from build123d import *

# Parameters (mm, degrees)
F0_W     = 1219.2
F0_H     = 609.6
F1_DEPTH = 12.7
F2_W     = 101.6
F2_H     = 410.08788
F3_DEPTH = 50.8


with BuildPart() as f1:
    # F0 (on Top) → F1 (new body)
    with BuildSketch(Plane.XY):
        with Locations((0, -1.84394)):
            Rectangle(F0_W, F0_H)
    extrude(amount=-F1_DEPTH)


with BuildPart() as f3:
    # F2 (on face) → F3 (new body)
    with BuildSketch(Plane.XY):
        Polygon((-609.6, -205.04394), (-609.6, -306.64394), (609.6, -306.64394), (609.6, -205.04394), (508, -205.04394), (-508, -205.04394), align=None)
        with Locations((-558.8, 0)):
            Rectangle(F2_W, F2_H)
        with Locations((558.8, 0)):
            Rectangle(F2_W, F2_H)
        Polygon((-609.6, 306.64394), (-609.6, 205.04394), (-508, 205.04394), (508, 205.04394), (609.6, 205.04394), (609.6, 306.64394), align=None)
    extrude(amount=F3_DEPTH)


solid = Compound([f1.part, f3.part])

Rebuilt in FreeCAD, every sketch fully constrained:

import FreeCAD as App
import Part
import Sketcher
Q = App.Units.Quantity

doc = App.newDocument("Part")
params = doc.addObject("Spreadsheet::Sheet", "Params")
for row, (alias, value) in enumerate([
    ("sketch1_width", "48 in"),
    ("sketch1_height", "24 in"),
    ("pad1_length", "0.5 in"),
    ("sketch2_width", "48 in"),
    ("sketch2_width2", "40 in"),
    ("pad2_length", "2 in"),
], start=1):
    params.set(f"A{row}", alias)
    params.set(f"B{row}", "=" + value)
    params.setAlias(f"B{row}", alias)

body = doc.addObject("PartDesign::Body", "Body")

# Sketch on XY plane
sketch1 = body.newObject("Sketcher::SketchObject", "Sketch")
sketch1.AttachmentSupport = (doc.getObject("XY_Plane"), [""])
sketch1.MapMode = "FlatFace"
sketch1.addGeometry([
    Part.LineSegment(App.Vector(-610, 303, 0), App.Vector(-610, -307, 0)),
    Part.LineSegment(App.Vector(-610, -307, 0), App.Vector(610, -307, 0)),
    Part.LineSegment(App.Vector(610, -307, 0), App.Vector(610, 303, 0)),
    Part.LineSegment(App.Vector(610, 303, 0), App.Vector(-610, 303, 0)),
], False)
sketch1.addConstraint([
    Sketcher.Constraint("Coincident", 0, 2, 1, 1),
    Sketcher.Constraint("Coincident", 1, 2, 2, 1),
    Sketcher.Constraint("Coincident", 2, 2, 3, 1),
    Sketcher.Constraint("Coincident", 3, 2, 0, 1),
    Sketcher.Constraint("Vertical", 0),
    Sketcher.Constraint("Horizontal", 1),
    Sketcher.Constraint("Vertical", 2),
    Sketcher.Constraint("Horizontal", 3),
    Sketcher.Constraint("DistanceX", 1, 1, 1, 2, Q("48 in")),
    Sketcher.Constraint("DistanceY", 0, 2, 0, 1, Q("24 in")),
    Sketcher.Constraint("DistanceX", 0, 2, -1, 1, Q("24 in")),
    Sketcher.Constraint("DistanceY", 0, 2, -1, 1, Q("306.64394 mm")),
])
sketch1.setExpression("Constraints[8]", "Params.sketch1_width")
sketch1.setExpression("Constraints[9]", "Params.sketch1_height")
pad1 = body.newObject("PartDesign::Pad", "Pad")
pad1.Profile = sketch1
pad1.setExpression("Length", "Params.pad1_length")
pad1.Reversed = True
body2 = doc.addObject("PartDesign::Body", "Body001")

# Sketch on XY plane
sketch2 = body2.newObject("Sketcher::SketchObject", "Sketch001")
sketch2.AttachmentSupport = (doc.getObject("XY_Plane001"), [""])
sketch2.MapMode = "FlatFace"
sketch2.addGeometry([
    Part.LineSegment(App.Vector(-610, -307, 0), App.Vector(610, -307, 0)),  # 0
    Part.LineSegment(App.Vector(610, -307, 0), App.Vector(610, 307, 0)),  # 1
    Part.LineSegment(App.Vector(610, 307, 0), App.Vector(-610, 307, 0)),  # 2
    Part.LineSegment(App.Vector(-610, 307, 0), App.Vector(-610, -307, 0)),  # 3
    Part.LineSegment(App.Vector(508, 205, 0), App.Vector(508, -205, 0)),  # 4
    Part.LineSegment(App.Vector(508, -205, 0), App.Vector(-508, -205, 0)),  # 5
    Part.LineSegment(App.Vector(-508, -205, 0), App.Vector(-508, 205, 0)),  # 6
    Part.LineSegment(App.Vector(-508, 205, 0), App.Vector(508, 205, 0)),  # 7
], False)
sketch2.addConstraint([
    Sketcher.Constraint("Coincident", 0, 2, 1, 1),
    Sketcher.Constraint("Coincident", 1, 2, 2, 1),
    Sketcher.Constraint("Coincident", 2, 2, 3, 1),
    Sketcher.Constraint("Coincident", 3, 2, 0, 1),
    Sketcher.Constraint("Coincident", 4, 2, 5, 1),
    Sketcher.Constraint("Coincident", 5, 2, 6, 1),
    Sketcher.Constraint("Coincident", 6, 2, 7, 1),
    Sketcher.Constraint("Coincident", 7, 2, 4, 1),
    Sketcher.Constraint("Horizontal", 0),
    Sketcher.Constraint("Vertical", 1),
    Sketcher.Constraint("Horizontal", 2),
    Sketcher.Constraint("Vertical", 3),
    Sketcher.Constraint("Vertical", 4),
    Sketcher.Constraint("Horizontal", 5),
    Sketcher.Constraint("Vertical", 6),
    Sketcher.Constraint("Horizontal", 7),
    Sketcher.Constraint("Symmetric", 0, 2, 2, 2, -1, 1),
    Sketcher.Constraint("Symmetric", 4, 2, 6, 2, -1, 1),
    Sketcher.Constraint("DistanceX", 0, 1, 0, 2, Q("48 in")),
    Sketcher.Constraint("DistanceX", 5, 2, 5, 1, Q("40 in")),
    Sketcher.Constraint("DistanceY", 0, 2, 4, 2, Q("4 in")),
    Sketcher.Constraint("DistanceY", 1, 1, 1, 2, Q("613.28788 mm")),
])
sketch2.setExpression("Constraints[18]", "Params.sketch2_width")
sketch2.setExpression("Constraints[19]", "Params.sketch2_width2")
pad2 = body2.newObject("PartDesign::Pad", "Pad001")
pad2.Profile = sketch2
pad2.setExpression("Length", "Params.pad2_length")

doc.recompute()
